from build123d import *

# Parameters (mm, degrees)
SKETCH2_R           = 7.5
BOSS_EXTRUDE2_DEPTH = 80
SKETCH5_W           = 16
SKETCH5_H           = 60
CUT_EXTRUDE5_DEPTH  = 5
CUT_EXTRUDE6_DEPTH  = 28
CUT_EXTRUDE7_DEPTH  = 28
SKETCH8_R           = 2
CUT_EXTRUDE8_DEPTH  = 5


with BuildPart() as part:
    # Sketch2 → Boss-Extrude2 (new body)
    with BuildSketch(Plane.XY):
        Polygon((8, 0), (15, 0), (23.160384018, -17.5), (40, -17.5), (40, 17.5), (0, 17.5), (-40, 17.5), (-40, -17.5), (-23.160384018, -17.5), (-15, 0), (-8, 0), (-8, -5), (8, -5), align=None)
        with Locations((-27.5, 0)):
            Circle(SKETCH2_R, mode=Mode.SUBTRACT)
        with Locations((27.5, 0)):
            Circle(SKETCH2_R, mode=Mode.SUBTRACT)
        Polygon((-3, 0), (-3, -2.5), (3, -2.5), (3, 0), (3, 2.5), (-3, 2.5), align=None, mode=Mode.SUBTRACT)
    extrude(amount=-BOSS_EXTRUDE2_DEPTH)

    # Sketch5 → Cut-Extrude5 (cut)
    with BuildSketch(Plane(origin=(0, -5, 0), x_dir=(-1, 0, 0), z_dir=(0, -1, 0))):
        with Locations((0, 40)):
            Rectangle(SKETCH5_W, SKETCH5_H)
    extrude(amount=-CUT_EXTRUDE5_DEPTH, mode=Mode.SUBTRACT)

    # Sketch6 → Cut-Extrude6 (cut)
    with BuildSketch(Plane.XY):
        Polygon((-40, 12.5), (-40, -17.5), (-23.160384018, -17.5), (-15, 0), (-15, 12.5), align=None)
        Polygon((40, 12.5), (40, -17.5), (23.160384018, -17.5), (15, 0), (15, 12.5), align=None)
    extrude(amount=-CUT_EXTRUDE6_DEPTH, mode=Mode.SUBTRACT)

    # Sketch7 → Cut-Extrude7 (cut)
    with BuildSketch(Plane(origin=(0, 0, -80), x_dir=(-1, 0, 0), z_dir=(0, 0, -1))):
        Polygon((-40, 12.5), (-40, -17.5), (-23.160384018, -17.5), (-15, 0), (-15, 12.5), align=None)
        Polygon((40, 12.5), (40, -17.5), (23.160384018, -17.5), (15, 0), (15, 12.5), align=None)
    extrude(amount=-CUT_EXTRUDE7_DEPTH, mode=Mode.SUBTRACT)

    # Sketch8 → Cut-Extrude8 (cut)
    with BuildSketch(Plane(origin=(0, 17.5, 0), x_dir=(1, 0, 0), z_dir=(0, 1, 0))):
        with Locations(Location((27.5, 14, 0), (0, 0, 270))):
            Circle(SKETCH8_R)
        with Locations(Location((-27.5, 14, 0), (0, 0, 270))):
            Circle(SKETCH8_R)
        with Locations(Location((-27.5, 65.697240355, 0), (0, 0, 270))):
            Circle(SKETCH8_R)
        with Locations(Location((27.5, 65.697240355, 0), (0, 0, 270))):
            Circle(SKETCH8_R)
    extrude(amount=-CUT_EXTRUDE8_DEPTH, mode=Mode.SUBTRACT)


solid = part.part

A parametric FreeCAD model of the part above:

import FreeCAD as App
import Part
import Sketcher
Q = App.Units.Quantity

doc = App.newDocument("Part")
body = doc.addObject("PartDesign::Body", "Body")

# Sketch on XY plane
sketch1 = body.newObject("Sketcher::SketchObject", "Sketch")
sketch1.AttachmentSupport = (doc.getObject("XY_Plane"), [""])
sketch1.MapMode = "FlatFace"
sketch1.addGeometry(Part.LineSegment(App.Vector(8, 0, 0), App.Vector(15, 0, 0)), False)
sketch1.addGeometry(Part.LineSegment(App.Vector(15, 0, 0), App.Vector(23, -18, 0)), False)
sketch1.addGeometry(Part.LineSegment(App.Vector(23, -18, 0), App.Vector(40, -18, 0)), False)
sketch1.addGeometry(Part.LineSegment(App.Vector(40, -18, 0), App.Vector(40, 18, 0)), False)
sketch1.addGeometry(Part.LineSegment(App.Vector(40, 18, 0), App.Vector(-40, 18, 0)), False)
sketch1.addGeometry(Part.LineSegment(App.Vector(-40, 18, 0), App.Vector(-40, -18, 0)), False)
sketch1.addGeometry(Part.LineSegment(App.Vector(-40, -18, 0), App.Vector(-23, -18, 0)), False)
sketch1.addGeometry(Part.LineSegment(App.Vector(-23, -18, 0), App.Vector(-15, 0, 0)), False)
sketch1.addGeometry(Part.LineSegment(App.Vector(-15, 0, 0), App.Vector(-8, 0, 0)), False)
sketch1.addGeometry(Part.LineSegment(App.Vector(-8, 0, 0), App.Vector(-8, -5, 0)), False)
sketch1.addGeometry(Part.LineSegment(App.Vector(-8, -5, 0), App.Vector(8, -5, 0)), False)
sketch1.addGeometry(Part.LineSegment(App.Vector(8, -5, 0), App.Vector(8, 0, 0)), False)
sketch1.addGeometry(Part.LineSegment(App.Vector(-3, -2, 0), App.Vector(-3, 2, 0)), False)
sketch1.addGeometry(Part.LineSegment(App.Vector(-3, 2, 0), App.Vector(3, 2, 0)), False)
sketch1.addGeometry(Part.LineSegment(App.Vector(3, 2, 0), App.Vector(3, -2, 0)), False)
sketch1.addGeometry(Part.LineSegment(App.Vector(3, -2, 0), App.Vector(-3, -2, 0)), False)
sketch1.addGeometry(Part.Circle(App.Vector(-28, 0, 0), App.Vector(0, 0, 1), 8), False)
sketch1.addGeometry(Part.Circle(App.Vector(28, 0, 0), App.Vector(0, 0, 1), 8), False)
sketch1.addConstraint(Sketcher.Constraint("Coincident", 0, 2, 1, 1))
sketch1.addConstraint(Sketcher.Constraint("Coincident", 1, 2, 2, 1))
sketch1.addConstraint(Sketcher.Constraint("Coincident", 2, 2, 3, 1))
sketch1.addConstraint(Sketcher.Constraint("Coincident", 3, 2, 4, 1))
sketch1.addConstraint(Sketcher.Constraint("Coincident", 4, 2, 5, 1))
sketch1.addConstraint(Sketcher.Constraint("Coincident", 5, 2, 6, 1))
sketch1.addConstraint(Sketcher.Constraint("Coincident", 6, 2, 7, 1))
sketch1.addConstraint(Sketcher.Constraint("Coincident", 7, 2, 8, 1))
sketch1.addConstraint(Sketcher.Constraint("Coincident", 8, 2, 9, 1))
sketch1.addConstraint(Sketcher.Constraint("Coincident", 9, 2, 10, 1))
sketch1.addConstraint(Sketcher.Constraint("Coincident", 10, 2, 11, 1))
sketch1.addConstraint(Sketcher.Constraint("Coincident", 11, 2, 0, 1))
sketch1.addConstraint(Sketcher.Constraint("Coincident", 12, 2, 13, 1))
sketch1.addConstraint(Sketcher.Constraint("Coincident", 13, 2, 14, 1))
sketch1.addConstraint(Sketcher.Constraint("Coincident", 14, 2, 15, 1))
sketch1.addConstraint(Sketcher.Constraint("Coincident", 15, 2, 12, 1))
sketch1.addConstraint(Sketcher.Constraint("Horizontal", 0))
sketch1.addConstraint(Sketcher.Constraint("Horizontal", 2))
sketch1.addConstraint(Sketcher.Constraint("Vertical", 3))
sketch1.addConstraint(Sketcher.Constraint("Horizontal", 4))
sketch1.addConstraint(Sketcher.Constraint("Vertical", 5))
sketch1.addConstraint(Sketcher.Constraint("Horizontal", 6))
sketch1.addConstraint(Sketcher.Constraint("Horizontal", 8))
sketch1.addConstraint(Sketcher.Constraint("Vertical", 9))
sketch1.addConstraint(Sketcher.Constraint("Horizontal", 10))
sketch1.addConstraint(Sketcher.Constraint("Vertical", 11))
sketch1.addConstraint(Sketcher.Constraint("Vertical", 12))
sketch1.addConstraint(Sketcher.Constraint("Horizontal", 13))
sketch1.addConstraint(Sketcher.Constraint("Vertical", 14))
sketch1.addConstraint(Sketcher.Constraint("Horizontal", 15))
sketch1.addConstraint(Sketcher.Constraint("Equal", 16, 17))
sketch1.addConstraint(Sketcher.Constraint("Symmetric", 16, 3, 17, 3, -1, 1))
sketch1.addConstraint(Sketcher.Constraint("Symmetric", 2, 2, 4, 2, -1, 1))
sketch1.addConstraint(Sketcher.Constraint("Symmetric", 0, 2, 7, 2, -1, 1))
sketch1.addConstraint(Sketcher.Constraint("Symmetric", 12, 2, 14, 2, -1, 1))
sketch1.addConstraint(Sketcher.Constraint("Symmetric", 1, 2, 6, 2, -2))
sketch1.addConstraint(Sketcher.Constraint("Symmetric", 8, 2, 11, 2, -2))
sketch1.addConstraint(Sketcher.Constraint("PointOnObject", 16, 3, -1))
sketch1.addConstraint(Sketcher.Constraint("Equal", 11, 12))
sketch1.addConstraint(Sketcher.Constraint("Diameter", 16, Q("15 mm")))
sketch1.addConstraint(Sketcher.Constraint("DistanceX", 0, 1, 0, 2, Q("7 mm")))
sketch1.addConstraint(Sketcher.Constraint("DistanceX", 4, 2, 4, 1, Q("80 mm")))
sketch1.addConstraint(Sketcher.Constraint("DistanceX", 10, 1, 10, 2, Q("16 mm")))
sketch1.addConstraint(Sketcher.Constraint("DistanceX", 13, 1, 13, 2, Q("6 mm")))
sketch1.addConstraint(Sketcher.Constraint("DistanceY", 3, 1, 3, 2, Q("35 mm")))
sketch1.addConstraint(Sketcher.Constraint("DistanceY", 9, 2, 9, 1, Q("5 mm")))
sketch1.addConstraint(Sketcher.Constraint("Angle", 1, Q("-65 deg")))
sketch1.addConstraint(Sketcher.Constraint("DistanceX", 16, 3, 17, 3, Q("55 mm")))
pad1 = body.newObject("PartDesign::Pad", "Pad")
pad1.Profile = sketch1
pad1.Length = 80
pad1.Reversed = True

# Sketch on XZ plane
sketch2 = body.newObject("Sketcher::SketchObject", "Sketch001")
sketch2.AttachmentSupport = (doc.getObject("XZ_Plane"), [""])
sketch2.MapMode = "FlatFace"
sketch2.AttachmentOffset = App.Placement(App.Vector(0, 0, 5), App.Rotation())
sketch2.addGeometry(Part.LineSegment(App.Vector(8, -70, 0), App.Vector(8, -10, 0)), False)
sketch2.addGeometry(Part.LineSegment(App.Vector(8, -10, 0), App.Vector(-8, -10, 0)), False)
sketch2.addGeometry(Part.LineSegment(App.Vector(-8, -10, 0), App.Vector(-8, -70, 0)), False)
sketch2.addGeometry(Part.LineSegment(App.Vector(-8, -70, 0), App.Vector(8, -70, 0)), False)
sketch2.addConstraint(Sketcher.Constraint("Coincident", 0, 2, 1, 1))
sketch2.addConstraint(Sketcher.Constraint("Coincident", 1, 2, 2, 1))
sketch2.addConstraint(Sketcher.Constraint("Coincident", 2, 2, 3, 1))
sketch2.addConstraint(Sketcher.Constraint("Coincident", 3, 2, 0, 1))
sketch2.addConstraint(Sketcher.Constraint("Vertical", 0))
sketch2.addConstraint(Sketcher.Constraint("Horizontal", 1))
sketch2.addConstraint(Sketcher.Constraint("Vertical", 2))
sketch2.addConstraint(Sketcher.Constraint("Horizontal", 3))
sketch2.addConstraint(Sketcher.Constraint("DistanceX", 1, 2, 1, 1, Q("16 mm")))
sketch2.addConstraint(Sketcher.Constraint("DistanceY", 0, 1, 0, 2, Q("60 mm")))
sketch2.addConstraint(Sketcher.Constraint("DistanceX", -1, 1, 0, 2, Q("8 mm")))
sketch2.addConstraint(Sketcher.Constraint("DistanceY", 0, 2, -1, 1, Q("10 mm")))
pocket1 = body.newObject("PartDesign::Pocket", "Pocket")
pocket1.Profile = sketch2
pocket1.Length = 5

# Sketch on XY plane
sketch3 = body.newObject("Sketcher::SketchObject", "Sketch002")
sketch3.AttachmentSupport = (doc.getObject("XY_Plane"), [""])
sketch3.MapMode = "FlatFace"
sketch3.addGeometry(Part.LineSegment(App.Vector(-40, 12, 0), App.Vector(-40, -18, 0)), False)
sketch3.addGeometry(Part.LineSegment(App.Vector(-40, -18, 0), App.Vector(-23, -18, 0)), False)
sketch3.addGeometry(Part.LineSegment(App.Vector(-23, -18, 0), App.Vector(-15, 0, 0)), False)
sketch3.addGeometry(Part.LineSegment(App.Vector(-15, 0, 0), App.Vector(-15, 12, 0)), False)
sketch3.addGeometry(Part.LineSegment(App.Vector(-15, 12, 0), App.Vector(-40, 12, 0)), False)
sketch3.addGeometry(Part.LineSegment(App.Vector(40, -18, 0), App.Vector(40, 12, 0)), False)
sketch3.addGeometry(Part.LineSegment(App.Vector(40, 12, 0), App.Vector(15, 12, 0)), False)
sketch3.addGeometry(Part.LineSegment(App.Vector(15, 12, 0), App.Vector(15, 0, 0)), False)
sketch3.addGeometry(Part.LineSegment(App.Vector(15, 0, 0), App.Vector(23, -18, 0)), False)
sketch3.addGeometry(Part.LineSegment(App.Vector(23, -18, 0), App.Vector(40, -18, 0)), False)
sketch3.addConstraint(Sketcher.Constraint("Coincident", 0, 2, 1, 1))
sketch3.addConstraint(Sketcher.Constraint("Coincident", 1, 2, 2, 1))
sketch3.addConstraint(Sketcher.Constraint("Coincident", 2, 2, 3, 1))
sketch3.addConstraint(Sketcher.Constraint("Coincident", 3, 2, 4, 1))
sketch3.addConstraint(Sketcher.Constraint("Coincident", 4, 2, 0, 1))
sketch3.addConstraint(Sketcher.Constraint("Coincident", 5, 2, 6, 1))
sketch3.addConstraint(Sketcher.Constraint("Coincident", 6, 2, 7, 1))
sketch3.addConstraint(Sketcher.Constraint("Coincident", 7, 2, 8, 1))
sketch3.addConstraint(Sketcher.Constraint("Coincident", 8, 2, 9, 1))
sketch3.addConstraint(Sketcher.Constraint("Coincident", 9, 2, 5, 1))
sketch3.addConstraint(Sketcher.Constraint("Vertical", 0))
sketch3.addConstraint(Sketcher.Constraint("Horizontal", 1))
sketch3.addConstraint(Sketcher.Constraint("Vertical", 3))
sketch3.addConstraint(Sketcher.Constraint("Horizontal", 4))
sketch3.addConstraint(Sketcher.Constraint("Vertical", 5))
sketch3.addConstraint(Sketcher.Constraint("Horizontal", 6))
sketch3.addConstraint(Sketcher.Constraint("Vertical", 7))
sketch3.addConstraint(Sketcher.Constraint("Horizontal", 9))
sketch3.addConstraint(Sketcher.Constraint("Symmetric", 2, 2, 7, 2, -1, 1))
sketch3.addConstraint(Sketcher.Constraint("Symmetric", 4, 2, 5, 2, -2))
sketch3.addConstraint(Sketcher.Constraint("Symmetric", 1, 2, 8, 2, -2))
sketch3.addConstraint(Sketcher.Constraint("PointOnObject", 2, 2, -1))
sketch3.addConstraint(Sketcher.Constraint("DistanceX", 4, 2, 4, 1, Q("25 mm")))
sketch3.addConstraint(Sketcher.Constraint("DistanceY", 0, 2, 0, 1, Q("30 mm")))
sketch3.addConstraint(Sketcher.Constraint("Angle", 2, Q("65 deg")))
sketch3.addConstraint(Sketcher.Constraint("DistanceY", 3, 1, 3, 2, Q("12.5 mm")))
sketch3.addConstraint(Sketcher.Constraint("DistanceX", 0, 2, -1, 1, Q("40 mm")))
pocket2 = body.newObject("PartDesign::Pocket", "Pocket001")
pocket2.Profile = sketch3
pocket2.Length = 28

# Sketch on XY plane
sketch4 = body.newObject("Sketcher::SketchObject", "Sketch003")
sketch4.AttachmentSupport = (doc.getObject("XY_Plane"), [""])
sketch4.MapMode = "FlatFace"
sketch4.AttachmentOffset = App.Placement(App.Vector(0, 0, -80), App.Rotation())
sketch4.addGeometry(Part.LineSegment(App.Vector(40, 12, 0), App.Vector(40, -18, 0)), False)
sketch4.addGeometry(Part.LineSegment(App.Vector(40, -18, 0), App.Vector(23, -18, 0)), False)
sketch4.addGeometry(Part.LineSegment(App.Vector(23, -18, 0), App.Vector(15, 0, 0)), False)
sketch4.addGeometry(Part.LineSegment(App.Vector(15, 0, 0), App.Vector(15, 12, 0)), False)
sketch4.addGeometry(Part.LineSegment(App.Vector(15, 12, 0), App.Vector(40, 12, 0)), False)
sketch4.addGeometry(Part.LineSegment(App.Vector(-40, -18, 0), App.Vector(-40, 12, 0)), False)
sketch4.addGeometry(Part.LineSegment(App.Vector(-40, 12, 0), App.Vector(-15, 12, 0)), False)
sketch4.addGeometry(Part.LineSegment(App.Vector(-15, 12, 0), App.Vector(-15, 0, 0)), False)
sketch4.addGeometry(Part.LineSegment(App.Vector(-15, 0, 0), App.Vector(-23, -18, 0)), False)
sketch4.addGeometry(Part.LineSegment(App.Vector(-23, -18, 0), App.Vector(-40, -18, 0)), False)
sketch4.addConstraint(Sketcher.Constraint("Coincident", 0, 2, 1, 1))
sketch4.addConstraint(Sketcher.Constraint("Coincident", 1, 2, 2, 1))
sketch4.addConstraint(Sketcher.Constraint("Coincident", 2, 2, 3, 1))
sketch4.addConstraint(Sketcher.Constraint("Coincident", 3, 2, 4, 1))
sketch4.addConstraint(Sketcher.Constraint("Coincident", 4, 2, 0, 1))
sketch4.addConstraint(Sketcher.Constraint("Coincident", 5, 2, 6, 1))
sketch4.addConstraint(Sketcher.Constraint("Coincident", 6, 2, 7, 1))
sketch4.addConstraint(Sketcher.Constraint("Coincident", 7, 2, 8, 1))
sketch4.addConstraint(Sketcher.Constraint("Coincident", 8, 2, 9, 1))
sketch4.addConstraint(Sketcher.Constraint("Coincident", 9, 2, 5, 1))
sketch4.addConstraint(Sketcher.Constraint("Vertical", 0))
sketch4.addConstraint(Sketcher.Constraint("Horizontal", 1))
sketch4.addConstraint(Sketcher.Constraint("Vertical", 3))
sketch4.addConstraint(Sketcher.Constraint("Horizontal", 4))
sketch4.addConstraint(Sketcher.Constraint("Vertical", 5))
sketch4.addConstraint(Sketcher.Constraint("Horizontal", 6))
sketch4.addConstraint(Sketcher.Constraint("Vertical", 7))
sketch4.addConstraint(Sketcher.Constraint("Horizontal", 9))
sketch4.addConstraint(Sketcher.Constraint("Symmetric", 2, 2, 7, 2, -1, 1))
sketch4.addConstraint(Sketcher.Constraint("Symmetric", 4, 2, 5, 2, -2))
sketch4.addConstraint(Sketcher.Constraint("Symmetric", 1, 2, 8, 2, -2))
sketch4.addConstraint(Sketcher.Constraint("PointOnObject", 2, 2, -1))
sketch4.addConstraint(Sketcher.Constraint("DistanceX", 4, 1, 4, 2, Q("25 mm")))
sketch4.addConstraint(Sketcher.Constraint("DistanceY", 0, 2, 0, 1, Q("30 mm")))
sketch4.addConstraint(Sketcher.Constraint("Angle", 2, Q("115 deg")))
sketch4.addConstraint(Sketcher.Constraint("DistanceY", 3, 1, 3, 2, Q("12.5 mm")))
sketch4.addConstraint(Sketcher.Constraint("DistanceX", -1, 1, 0, 2, Q("40 mm")))
pocket3 = body.newObject("PartDesign::Pocket", "Pocket002")
pocket3.Profile = sketch4
pocket3.Length = 28
pocket3.Reversed = True

# Sketch on XZ plane
sketch5 = body.newObject("Sketcher::SketchObject", "Sketch004")
sketch5.AttachmentSupport = (doc.getObject("XZ_Plane"), [""])
sketch5.MapMode = "FlatFace"
sketch5.AttachmentOffset = App.Placement(App.Vector(0, 0, -17.5), App.Rotation())
sketch5.addGeometry(Part.Circle(App.Vector(27.5, -14, 0), App.Vector(0, 0, 1), 2), False)
sketch5.addGeometry(Part.Circle(App.Vector(-27.5, -14, 0), App.Vector(0, 0, 1), 2), False)
sketch5.addGeometry(Part.Circle(App.Vector(-27.5, -65.7, 0), App.Vector(0, 0, 1), 2), False)
sketch5.addGeometry(Part.Circle(App.Vector(27.5, -65.7, 0), App.Vector(0, 0, 1), 2), False)
sketch5.addConstraint(Sketcher.Constraint("Equal", 0, 1))
sketch5.addConstraint(Sketcher.Constraint("Equal", 1, 2))
sketch5.addConstraint(Sketcher.Constraint("Equal", 2, 3))
sketch5.addConstraint(Sketcher.Constraint("Symmetric", 0, 3, 1, 3, -2))
sketch5.addConstraint(Sketcher.Constraint("Symmetric", 2, 3, 3, 3, -2))
sketch5.addConstraint(Sketcher.Constraint("Vertical", 1, 3, 2, 3))
sketch5.addConstraint(Sketcher.Constraint("Diameter", 0, Q("4 mm")))
sketch5.addConstraint(Sketcher.Constraint("DistanceY", 0, 3, -1, 1, Q("14 mm")))
sketch5.addConstraint(Sketcher.Constraint("DistanceX", 1, 3, 0, 3, Q("55 mm")))
sketch5.addConstraint(Sketcher.Constraint("DistanceY", 2, 3, -1, 1, Q("65.69724 mm")))
pocket4 = body.newObject("PartDesign::Pocket", "Pocket003")
pocket4.Profile = sketch5
pocket4.Length = 5
pocket4.Reversed = True

doc.recompute()
